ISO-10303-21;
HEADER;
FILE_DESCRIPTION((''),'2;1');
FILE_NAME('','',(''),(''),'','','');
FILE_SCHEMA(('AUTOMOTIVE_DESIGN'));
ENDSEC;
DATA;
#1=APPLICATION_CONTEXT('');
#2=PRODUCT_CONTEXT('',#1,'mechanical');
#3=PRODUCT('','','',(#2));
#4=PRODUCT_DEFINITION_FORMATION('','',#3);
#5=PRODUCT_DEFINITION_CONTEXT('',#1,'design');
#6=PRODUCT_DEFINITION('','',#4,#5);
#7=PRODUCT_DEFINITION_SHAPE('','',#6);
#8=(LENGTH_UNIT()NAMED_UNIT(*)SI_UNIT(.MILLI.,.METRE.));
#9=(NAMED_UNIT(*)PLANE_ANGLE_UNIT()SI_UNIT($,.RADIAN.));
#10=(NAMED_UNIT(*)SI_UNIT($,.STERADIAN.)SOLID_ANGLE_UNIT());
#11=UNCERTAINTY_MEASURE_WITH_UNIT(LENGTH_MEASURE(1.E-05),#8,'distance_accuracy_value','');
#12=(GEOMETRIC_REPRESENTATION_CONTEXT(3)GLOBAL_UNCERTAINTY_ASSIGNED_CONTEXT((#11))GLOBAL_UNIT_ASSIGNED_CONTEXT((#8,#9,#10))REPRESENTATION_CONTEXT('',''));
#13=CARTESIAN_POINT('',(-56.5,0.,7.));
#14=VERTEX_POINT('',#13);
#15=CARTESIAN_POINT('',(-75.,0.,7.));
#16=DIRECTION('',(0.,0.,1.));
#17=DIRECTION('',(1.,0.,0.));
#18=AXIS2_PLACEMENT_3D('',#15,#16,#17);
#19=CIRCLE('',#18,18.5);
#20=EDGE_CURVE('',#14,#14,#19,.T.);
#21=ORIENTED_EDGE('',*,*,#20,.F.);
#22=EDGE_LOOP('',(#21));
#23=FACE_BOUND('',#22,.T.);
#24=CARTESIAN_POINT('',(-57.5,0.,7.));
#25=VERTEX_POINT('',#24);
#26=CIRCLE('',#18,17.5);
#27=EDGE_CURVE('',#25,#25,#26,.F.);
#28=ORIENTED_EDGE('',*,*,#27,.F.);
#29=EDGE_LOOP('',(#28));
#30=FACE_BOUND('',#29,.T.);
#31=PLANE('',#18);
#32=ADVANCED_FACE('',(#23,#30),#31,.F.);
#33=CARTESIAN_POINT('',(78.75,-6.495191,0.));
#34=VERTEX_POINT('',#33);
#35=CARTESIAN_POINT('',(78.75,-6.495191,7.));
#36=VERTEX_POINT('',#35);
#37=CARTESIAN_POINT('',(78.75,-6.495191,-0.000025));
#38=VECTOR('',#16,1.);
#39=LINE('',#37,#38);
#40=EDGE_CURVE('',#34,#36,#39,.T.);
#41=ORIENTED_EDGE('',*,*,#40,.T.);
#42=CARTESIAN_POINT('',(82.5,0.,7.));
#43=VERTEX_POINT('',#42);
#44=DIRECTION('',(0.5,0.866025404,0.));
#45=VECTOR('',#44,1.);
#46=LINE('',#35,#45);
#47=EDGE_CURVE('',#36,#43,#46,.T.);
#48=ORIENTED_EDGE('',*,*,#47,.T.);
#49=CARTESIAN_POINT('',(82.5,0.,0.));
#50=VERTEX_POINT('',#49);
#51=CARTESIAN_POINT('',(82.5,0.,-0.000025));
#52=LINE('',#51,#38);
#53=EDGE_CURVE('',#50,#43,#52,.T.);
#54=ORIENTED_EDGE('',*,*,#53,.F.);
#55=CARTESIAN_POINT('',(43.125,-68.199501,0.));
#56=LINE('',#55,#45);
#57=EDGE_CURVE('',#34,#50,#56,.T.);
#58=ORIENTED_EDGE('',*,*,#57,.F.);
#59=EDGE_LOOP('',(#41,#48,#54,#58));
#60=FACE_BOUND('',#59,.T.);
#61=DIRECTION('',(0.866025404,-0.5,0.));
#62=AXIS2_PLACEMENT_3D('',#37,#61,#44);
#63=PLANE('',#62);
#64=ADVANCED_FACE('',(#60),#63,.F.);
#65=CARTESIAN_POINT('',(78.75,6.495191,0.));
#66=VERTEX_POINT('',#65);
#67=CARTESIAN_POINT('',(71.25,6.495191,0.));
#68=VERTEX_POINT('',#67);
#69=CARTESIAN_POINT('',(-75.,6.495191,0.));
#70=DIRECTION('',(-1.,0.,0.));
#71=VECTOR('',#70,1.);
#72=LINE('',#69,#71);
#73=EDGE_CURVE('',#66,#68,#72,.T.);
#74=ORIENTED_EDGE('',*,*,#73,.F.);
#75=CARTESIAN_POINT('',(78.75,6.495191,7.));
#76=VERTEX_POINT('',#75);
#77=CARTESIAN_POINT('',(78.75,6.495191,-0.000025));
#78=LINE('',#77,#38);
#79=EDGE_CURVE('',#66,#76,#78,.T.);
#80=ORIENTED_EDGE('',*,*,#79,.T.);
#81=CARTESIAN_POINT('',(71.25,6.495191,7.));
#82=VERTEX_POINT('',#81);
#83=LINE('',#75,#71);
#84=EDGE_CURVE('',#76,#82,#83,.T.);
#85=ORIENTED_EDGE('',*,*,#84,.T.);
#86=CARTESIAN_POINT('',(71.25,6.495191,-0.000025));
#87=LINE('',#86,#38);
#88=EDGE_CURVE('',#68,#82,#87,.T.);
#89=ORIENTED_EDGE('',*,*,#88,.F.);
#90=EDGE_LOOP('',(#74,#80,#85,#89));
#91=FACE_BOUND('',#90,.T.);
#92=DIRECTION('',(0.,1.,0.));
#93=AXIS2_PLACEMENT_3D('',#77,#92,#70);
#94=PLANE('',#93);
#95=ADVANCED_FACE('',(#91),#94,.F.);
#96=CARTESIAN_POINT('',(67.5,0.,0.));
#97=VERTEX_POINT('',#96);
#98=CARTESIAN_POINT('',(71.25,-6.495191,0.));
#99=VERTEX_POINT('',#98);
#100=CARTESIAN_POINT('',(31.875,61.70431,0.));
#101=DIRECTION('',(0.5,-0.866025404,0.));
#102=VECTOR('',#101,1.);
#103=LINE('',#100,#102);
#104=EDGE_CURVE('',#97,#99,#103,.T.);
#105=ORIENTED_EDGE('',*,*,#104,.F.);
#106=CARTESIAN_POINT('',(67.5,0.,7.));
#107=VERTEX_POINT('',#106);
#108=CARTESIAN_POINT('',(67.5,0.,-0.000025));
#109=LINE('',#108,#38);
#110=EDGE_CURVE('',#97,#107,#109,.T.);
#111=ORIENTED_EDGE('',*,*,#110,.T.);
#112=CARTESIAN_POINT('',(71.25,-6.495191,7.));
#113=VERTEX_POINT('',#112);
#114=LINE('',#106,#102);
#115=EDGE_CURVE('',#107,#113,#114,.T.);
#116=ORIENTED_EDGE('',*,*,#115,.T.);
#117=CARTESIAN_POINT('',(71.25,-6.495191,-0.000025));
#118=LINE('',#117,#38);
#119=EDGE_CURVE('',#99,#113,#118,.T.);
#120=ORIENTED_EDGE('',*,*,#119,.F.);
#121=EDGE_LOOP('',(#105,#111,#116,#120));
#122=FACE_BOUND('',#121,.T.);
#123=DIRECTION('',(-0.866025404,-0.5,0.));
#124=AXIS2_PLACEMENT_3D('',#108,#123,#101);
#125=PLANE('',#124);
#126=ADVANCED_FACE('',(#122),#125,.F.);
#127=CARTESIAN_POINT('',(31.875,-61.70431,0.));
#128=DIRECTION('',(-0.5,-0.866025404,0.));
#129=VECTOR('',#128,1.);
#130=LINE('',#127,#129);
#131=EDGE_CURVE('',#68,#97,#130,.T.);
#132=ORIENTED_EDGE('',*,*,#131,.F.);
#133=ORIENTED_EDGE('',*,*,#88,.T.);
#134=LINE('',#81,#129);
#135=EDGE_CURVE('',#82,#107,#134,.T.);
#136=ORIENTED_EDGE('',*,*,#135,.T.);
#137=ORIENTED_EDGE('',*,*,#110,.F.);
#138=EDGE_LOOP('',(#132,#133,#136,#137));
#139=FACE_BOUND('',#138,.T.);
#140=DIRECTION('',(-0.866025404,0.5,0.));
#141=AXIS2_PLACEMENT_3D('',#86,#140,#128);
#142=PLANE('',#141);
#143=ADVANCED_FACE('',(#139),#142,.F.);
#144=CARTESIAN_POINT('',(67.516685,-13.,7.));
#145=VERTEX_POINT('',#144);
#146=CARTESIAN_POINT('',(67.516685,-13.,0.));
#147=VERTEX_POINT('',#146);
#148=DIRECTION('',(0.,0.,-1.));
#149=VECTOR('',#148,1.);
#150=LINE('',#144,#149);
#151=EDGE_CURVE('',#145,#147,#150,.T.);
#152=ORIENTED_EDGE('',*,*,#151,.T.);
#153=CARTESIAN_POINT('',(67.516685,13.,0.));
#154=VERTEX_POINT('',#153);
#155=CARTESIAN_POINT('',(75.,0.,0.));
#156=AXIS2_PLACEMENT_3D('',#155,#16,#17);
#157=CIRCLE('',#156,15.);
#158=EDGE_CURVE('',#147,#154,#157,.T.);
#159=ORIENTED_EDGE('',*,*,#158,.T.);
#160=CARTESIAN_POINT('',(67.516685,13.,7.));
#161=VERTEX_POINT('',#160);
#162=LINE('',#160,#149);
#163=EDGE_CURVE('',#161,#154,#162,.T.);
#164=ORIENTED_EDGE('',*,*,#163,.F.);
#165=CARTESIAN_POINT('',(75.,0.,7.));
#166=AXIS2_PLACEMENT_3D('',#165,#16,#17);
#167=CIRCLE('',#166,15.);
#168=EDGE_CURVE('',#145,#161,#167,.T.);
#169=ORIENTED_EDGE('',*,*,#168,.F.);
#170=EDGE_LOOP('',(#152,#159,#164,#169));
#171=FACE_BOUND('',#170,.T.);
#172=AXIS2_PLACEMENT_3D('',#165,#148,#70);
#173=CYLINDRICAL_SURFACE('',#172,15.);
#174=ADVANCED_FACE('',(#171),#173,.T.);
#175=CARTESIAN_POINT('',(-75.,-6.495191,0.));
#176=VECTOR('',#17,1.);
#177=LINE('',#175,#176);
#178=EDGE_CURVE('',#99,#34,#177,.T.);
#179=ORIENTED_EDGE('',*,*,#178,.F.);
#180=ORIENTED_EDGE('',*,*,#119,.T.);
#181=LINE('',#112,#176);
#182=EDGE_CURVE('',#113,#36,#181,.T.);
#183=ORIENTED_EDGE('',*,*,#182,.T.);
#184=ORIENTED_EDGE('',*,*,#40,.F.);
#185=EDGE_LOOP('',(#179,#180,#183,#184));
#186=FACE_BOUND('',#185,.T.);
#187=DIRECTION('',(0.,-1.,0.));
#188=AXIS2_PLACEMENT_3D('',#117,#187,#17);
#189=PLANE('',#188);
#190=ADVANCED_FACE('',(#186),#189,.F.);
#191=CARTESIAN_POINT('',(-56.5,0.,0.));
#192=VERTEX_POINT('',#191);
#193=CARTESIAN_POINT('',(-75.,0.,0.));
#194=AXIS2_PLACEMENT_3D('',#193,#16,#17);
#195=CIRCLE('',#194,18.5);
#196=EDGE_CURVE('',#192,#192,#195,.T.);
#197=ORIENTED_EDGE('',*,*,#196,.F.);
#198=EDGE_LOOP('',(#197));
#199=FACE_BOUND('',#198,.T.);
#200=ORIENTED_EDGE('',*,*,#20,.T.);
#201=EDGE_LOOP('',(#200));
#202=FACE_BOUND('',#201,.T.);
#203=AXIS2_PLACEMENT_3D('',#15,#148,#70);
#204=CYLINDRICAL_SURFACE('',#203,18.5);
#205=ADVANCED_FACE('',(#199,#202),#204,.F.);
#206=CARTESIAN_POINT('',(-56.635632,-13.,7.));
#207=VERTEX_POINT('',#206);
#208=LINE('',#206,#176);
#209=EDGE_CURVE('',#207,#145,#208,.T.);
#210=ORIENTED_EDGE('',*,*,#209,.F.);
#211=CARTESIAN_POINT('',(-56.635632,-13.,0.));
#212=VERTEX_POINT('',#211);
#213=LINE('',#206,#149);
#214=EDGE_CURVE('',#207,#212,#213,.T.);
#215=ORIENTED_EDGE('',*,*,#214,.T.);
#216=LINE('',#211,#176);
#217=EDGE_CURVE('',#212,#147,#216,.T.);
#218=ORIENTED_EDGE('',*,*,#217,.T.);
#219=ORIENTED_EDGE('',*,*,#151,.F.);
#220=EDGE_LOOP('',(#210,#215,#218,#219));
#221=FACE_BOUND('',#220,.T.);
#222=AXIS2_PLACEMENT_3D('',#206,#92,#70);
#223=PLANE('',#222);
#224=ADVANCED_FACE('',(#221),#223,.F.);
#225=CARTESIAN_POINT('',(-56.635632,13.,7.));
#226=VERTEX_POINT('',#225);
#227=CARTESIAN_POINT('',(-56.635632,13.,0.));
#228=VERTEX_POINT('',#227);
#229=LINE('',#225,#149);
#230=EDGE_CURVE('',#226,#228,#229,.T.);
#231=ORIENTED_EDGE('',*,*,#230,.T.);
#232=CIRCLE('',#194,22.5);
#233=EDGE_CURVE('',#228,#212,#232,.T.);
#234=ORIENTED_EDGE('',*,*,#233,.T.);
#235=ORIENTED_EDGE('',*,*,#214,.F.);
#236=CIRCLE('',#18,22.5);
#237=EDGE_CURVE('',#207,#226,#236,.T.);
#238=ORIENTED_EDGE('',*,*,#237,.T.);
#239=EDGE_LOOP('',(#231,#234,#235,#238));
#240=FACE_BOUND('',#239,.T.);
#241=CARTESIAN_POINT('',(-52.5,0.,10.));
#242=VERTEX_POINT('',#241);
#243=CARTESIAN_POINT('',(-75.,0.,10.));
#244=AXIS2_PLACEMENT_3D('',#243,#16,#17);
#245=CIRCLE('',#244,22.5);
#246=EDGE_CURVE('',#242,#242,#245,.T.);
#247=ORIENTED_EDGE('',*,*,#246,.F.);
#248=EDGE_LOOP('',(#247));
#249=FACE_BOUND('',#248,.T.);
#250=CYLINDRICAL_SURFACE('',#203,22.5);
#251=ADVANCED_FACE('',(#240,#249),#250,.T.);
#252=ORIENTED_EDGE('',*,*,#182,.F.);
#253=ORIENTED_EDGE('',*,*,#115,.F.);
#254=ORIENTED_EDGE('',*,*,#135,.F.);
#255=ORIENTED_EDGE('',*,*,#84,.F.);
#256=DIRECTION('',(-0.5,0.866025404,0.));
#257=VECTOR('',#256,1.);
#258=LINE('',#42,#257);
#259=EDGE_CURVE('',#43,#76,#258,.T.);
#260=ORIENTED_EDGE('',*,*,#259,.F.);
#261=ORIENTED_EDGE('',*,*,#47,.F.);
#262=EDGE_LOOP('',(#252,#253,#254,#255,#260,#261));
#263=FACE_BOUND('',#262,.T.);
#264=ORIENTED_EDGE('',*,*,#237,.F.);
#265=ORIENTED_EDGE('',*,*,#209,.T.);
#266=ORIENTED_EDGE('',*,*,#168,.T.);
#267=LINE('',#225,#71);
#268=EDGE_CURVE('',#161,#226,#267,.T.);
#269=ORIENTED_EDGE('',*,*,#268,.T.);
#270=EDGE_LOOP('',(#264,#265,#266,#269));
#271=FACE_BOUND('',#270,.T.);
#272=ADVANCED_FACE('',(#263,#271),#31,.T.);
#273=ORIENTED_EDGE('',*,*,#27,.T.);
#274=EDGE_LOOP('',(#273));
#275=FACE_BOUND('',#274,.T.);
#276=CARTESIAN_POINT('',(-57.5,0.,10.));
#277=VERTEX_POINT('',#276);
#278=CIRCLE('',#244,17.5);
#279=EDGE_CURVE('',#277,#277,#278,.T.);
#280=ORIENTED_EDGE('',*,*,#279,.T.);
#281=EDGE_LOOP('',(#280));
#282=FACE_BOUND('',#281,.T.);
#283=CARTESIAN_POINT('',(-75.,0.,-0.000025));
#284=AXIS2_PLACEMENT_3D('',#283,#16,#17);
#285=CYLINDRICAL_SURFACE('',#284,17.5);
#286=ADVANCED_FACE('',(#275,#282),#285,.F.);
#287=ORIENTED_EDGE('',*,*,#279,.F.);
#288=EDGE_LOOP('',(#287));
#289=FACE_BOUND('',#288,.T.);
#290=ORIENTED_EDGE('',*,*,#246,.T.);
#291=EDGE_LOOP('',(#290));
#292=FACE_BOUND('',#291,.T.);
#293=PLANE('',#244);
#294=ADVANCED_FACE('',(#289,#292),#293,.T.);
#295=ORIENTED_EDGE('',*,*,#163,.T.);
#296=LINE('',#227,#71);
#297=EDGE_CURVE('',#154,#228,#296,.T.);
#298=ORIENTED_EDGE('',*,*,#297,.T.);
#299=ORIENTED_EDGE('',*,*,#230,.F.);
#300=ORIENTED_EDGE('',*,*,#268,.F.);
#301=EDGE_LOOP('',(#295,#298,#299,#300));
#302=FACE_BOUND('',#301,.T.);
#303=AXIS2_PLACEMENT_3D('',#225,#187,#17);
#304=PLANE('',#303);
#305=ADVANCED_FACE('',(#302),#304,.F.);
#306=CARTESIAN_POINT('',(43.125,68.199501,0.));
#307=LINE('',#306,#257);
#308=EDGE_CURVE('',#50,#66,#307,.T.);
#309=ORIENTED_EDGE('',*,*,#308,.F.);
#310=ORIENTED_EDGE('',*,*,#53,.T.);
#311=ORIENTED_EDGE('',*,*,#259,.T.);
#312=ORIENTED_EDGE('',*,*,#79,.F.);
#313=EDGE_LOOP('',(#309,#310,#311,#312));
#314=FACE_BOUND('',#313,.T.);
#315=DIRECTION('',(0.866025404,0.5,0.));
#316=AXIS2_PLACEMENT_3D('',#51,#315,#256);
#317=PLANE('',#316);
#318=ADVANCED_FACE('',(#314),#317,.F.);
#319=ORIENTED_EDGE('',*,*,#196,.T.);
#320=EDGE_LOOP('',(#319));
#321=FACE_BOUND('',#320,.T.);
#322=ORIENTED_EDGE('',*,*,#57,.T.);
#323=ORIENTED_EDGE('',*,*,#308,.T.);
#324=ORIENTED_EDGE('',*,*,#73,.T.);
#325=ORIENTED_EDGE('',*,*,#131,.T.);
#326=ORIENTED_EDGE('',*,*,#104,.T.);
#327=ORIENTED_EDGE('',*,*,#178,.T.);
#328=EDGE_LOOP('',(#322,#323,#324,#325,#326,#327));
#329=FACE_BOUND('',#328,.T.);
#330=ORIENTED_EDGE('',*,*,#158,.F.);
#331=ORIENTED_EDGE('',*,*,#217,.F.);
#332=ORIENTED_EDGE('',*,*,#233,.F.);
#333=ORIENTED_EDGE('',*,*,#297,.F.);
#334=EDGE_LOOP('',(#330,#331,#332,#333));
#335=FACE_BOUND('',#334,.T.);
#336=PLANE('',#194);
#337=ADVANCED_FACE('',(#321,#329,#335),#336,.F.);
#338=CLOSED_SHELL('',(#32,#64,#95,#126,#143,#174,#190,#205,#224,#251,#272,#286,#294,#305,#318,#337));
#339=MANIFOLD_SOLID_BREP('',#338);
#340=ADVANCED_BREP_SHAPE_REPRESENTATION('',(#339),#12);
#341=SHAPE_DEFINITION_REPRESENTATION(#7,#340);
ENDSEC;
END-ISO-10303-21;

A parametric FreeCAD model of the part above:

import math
import FreeCAD as App
import Part
import Sketcher
Q = App.Units.Quantity

doc = App.newDocument("Part")
params = doc.addObject("Spreadsheet::Sheet", "Params")
for row, (alias, value) in enumerate([
    ("sketch1_radius", "15 mm"),
    ("sketch1_radius2", "22.5 mm"),
    ("pad1_length", "7 mm"),
    ("sketch2_diameter", "45 mm"),
    ("pad2_length", "3 mm"),
    ("sketch3_width", "7.5 mm"),
    ("sketch4_diameter", "35 mm"),
    ("sketch5_diameter", "37 mm"),
    ("pocket3_length", "7 mm"),
], start=1):
    params.set(f"A{row}", alias)
    params.set(f"B{row}", "=" + value)
    params.setAlias(f"B{row}", alias)

body = doc.addObject("PartDesign::Body", "Body")

# Sketch on XY plane
sketch1 = body.newObject("Sketcher::SketchObject", "Sketch")
sketch1.AttachmentSupport = (doc.getObject("XY_Plane"), [""])
sketch1.MapMode = "FlatFace"
sketch1.addGeometry([
    Part.LineSegment(App.Vector(68, 13, 0), App.Vector(-57, 13, 0)),
    Part.ArcOfCircle(Part.Circle(App.Vector(-75, 0, 0), App.Vector(0, 0, 1), 22), math.radians(35), math.radians(325)),
    Part.LineSegment(App.Vector(-57, -13, 0), App.Vector(68, -13, 0)),
    Part.ArcOfCircle(Part.Circle(App.Vector(75, 0, 0), App.Vector(0, 0, 1), 15), math.radians(-120), math.radians(120)),
], False)
sketch1.addConstraint([
    Sketcher.Constraint("Coincident", 0, 2, 1, 1),
    Sketcher.Constraint("Coincident", 1, 2, 2, 1),
    Sketcher.Constraint("Coincident", 2, 2, 3, 1),
    Sketcher.Constraint("Coincident", 3, 2, 0, 1),
    Sketcher.Constraint("Horizontal", 0),
    Sketcher.Constraint("Horizontal", 2),
    Sketcher.Constraint("Symmetric", 1, 3, 3, 3, -1, 1),
    Sketcher.Constraint("Symmetric", 0, 2, 1, 2, -1),
    Sketcher.Constraint("Radius", 3, 15.0),
    Sketcher.Constraint("Radius", 1, 22.5),
    Sketcher.Constraint("DistanceX", 1, 3, -1, 1, 75.0),
    Sketcher.Constraint("DistanceY", -1, 1, 0, 2, 13.0),
])
sketch1.setExpression("Constraints[8]", "Params.sketch1_radius")
sketch1.setExpression("Constraints[9]", "Params.sketch1_radius2")
pad1 = body.newObject("PartDesign::Pad", "Pad")
pad1.Profile = sketch1
pad1.setExpression("Length", "Params.pad1_length")

# Sketch on XY plane
sketch2 = body.newObject("Sketcher::SketchObject", "Sketch001")
sketch2.AttachmentSupport = (doc.getObject("XY_Plane"), [""])
sketch2.MapMode = "FlatFace"
sketch2.AttachmentOffset = App.Placement(App.Vector(0, 0, 7), App.Rotation())
sketch2.addGeometry(Part.Circle(App.Vector(-75, 0, 0), App.Vector(0, 0, 1), 22), False)
sketch2.addConstraint([
    Sketcher.Constraint("PointOnObject", 0, 3, -1),
    Sketcher.Constraint("Diameter", 0, 45.0),
    Sketcher.Constraint("DistanceX", 0, 3, -1, 1, 75.0),
])
sketch2.setExpression("Constraints[1]", "Params.sketch2_diameter")
pad2 = body.newObject("PartDesign::Pad", "Pad001")
pad2.Profile = sketch2
pad2.setExpression("Length", "Params.pad2_length")

# Sketch on XY plane
sketch3 = body.newObject("Sketcher::SketchObject", "Sketch002")
sketch3.AttachmentSupport = (doc.getObject("XY_Plane"), [""])
sketch3.MapMode = "FlatFace"
sketch3.AttachmentOffset = App.Placement(App.Vector(0, 0, 7), App.Rotation())
sketch3.addGeometry([
    Part.LineSegment(App.Vector(82, 0, 0), App.Vector(79, 6, 0)),  # 0
    Part.LineSegment(App.Vector(79, 6, 0), App.Vector(71, 6, 0)),  # 1
    Part.LineSegment(App.Vector(71, 6, 0), App.Vector(68, 0, 0)),  # 2
    Part.LineSegment(App.Vector(68, 0, 0), App.Vector(71, -6, 0)),  # 3
    Part.LineSegment(App.Vector(71, -6, 0), App.Vector(79, -6, 0)),  # 4
    Part.LineSegment(App.Vector(79, -6, 0), App.Vector(82, 0, 0)),  # 5
], False)
sketch3.addConstraint([
    Sketcher.Constraint("Coincident", 0, 2, 1, 1),
    Sketcher.Constraint("Coincident", 1, 2, 2, 1),
    Sketcher.Constraint("Coincident", 2, 2, 3, 1),
    Sketcher.Constraint("Coincident", 3, 2, 4, 1),
    Sketcher.Constraint("Coincident", 4, 2, 5, 1),
    Sketcher.Constraint("Coincident", 5, 2, 0, 1),
    Sketcher.Constraint("Horizontal", 1),
    Sketcher.Constraint("Horizontal", 4),
    Sketcher.Constraint("Symmetric", 1, 2, 3, 2, -1),
    Sketcher.Constraint("PointOnObject", 2, 2, -1),
    Sketcher.Constraint("PointOnObject", 5, 2, -1),
    Sketcher.Constraint("Parallel", 0, 3),
    Sketcher.Constraint("Parallel", 2, 5),
    Sketcher.Constraint("Angle", 0, Q("120 deg")),
    Sketcher.Constraint("DistanceX", 1, 2, 1, 1, 7.5),
    Sketcher.Constraint("DistanceX", 2, 2, 5, 2, 15.0),
    Sketcher.Constraint("DistanceX", -1, 1, 2, 2, 67.5),
])
sketch3.setExpression("Constraints[14]", "Params.sketch3_width")
pocket1 = body.newObject("PartDesign::Pocket", "Pocket")
pocket1.Profile = sketch3
pocket1.Type = "ThroughAll"

# Sketch on XY plane
sketch4 = body.newObject("Sketcher::SketchObject", "Sketch003")
sketch4.AttachmentSupport = (doc.getObject("XY_Plane"), [""])
sketch4.MapMode = "FlatFace"
sketch4.AttachmentOffset = App.Placement(App.Vector(0, 0, 10), App.Rotation())
sketch4.addGeometry(Part.Circle(App.Vector(-75, 0, 0), App.Vector(0, 0, 1), 18), False)
sketch4.addConstraint([
    Sketcher.Constraint("PointOnObject", 0, 3, -1),
    Sketcher.Constraint("Diameter", 0, 35.0),
    Sketcher.Constraint("DistanceX", 0, 3, -1, 1, 75.0),
])
sketch4.setExpression("Constraints[1]", "Params.sketch4_diameter")
pocket2 = body.newObject("PartDesign::Pocket", "Pocket001")
pocket2.Profile = sketch4
pocket2.Type = "ThroughAll"

# Sketch on XY plane
sketch5 = body.newObject("Sketcher::SketchObject", "Sketch004")
sketch5.AttachmentSupport = (doc.getObject("XY_Plane"), [""])
sketch5.MapMode = "FlatFace"
sketch5.addGeometry(Part.Circle(App.Vector(-75, 0, 0), App.Vector(0, 0, 1), 18), False)
sketch5.addConstraint([
    Sketcher.Constraint("PointOnObject", 0, 3, -1),
    Sketcher.Constraint("Diameter", 0, 37.0),
    Sketcher.Constraint("DistanceX", 0, 3, -1, 1, 75.0),
])
sketch5.setExpression("Constraints[1]", "Params.sketch5_diameter")
pocket3 = body.newObject("PartDesign::Pocket", "Pocket002")
pocket3.Profile = sketch5
pocket3.setExpression("Length", "Params.pocket3_length")
pocket3.Reversed = True

doc.recompute()
